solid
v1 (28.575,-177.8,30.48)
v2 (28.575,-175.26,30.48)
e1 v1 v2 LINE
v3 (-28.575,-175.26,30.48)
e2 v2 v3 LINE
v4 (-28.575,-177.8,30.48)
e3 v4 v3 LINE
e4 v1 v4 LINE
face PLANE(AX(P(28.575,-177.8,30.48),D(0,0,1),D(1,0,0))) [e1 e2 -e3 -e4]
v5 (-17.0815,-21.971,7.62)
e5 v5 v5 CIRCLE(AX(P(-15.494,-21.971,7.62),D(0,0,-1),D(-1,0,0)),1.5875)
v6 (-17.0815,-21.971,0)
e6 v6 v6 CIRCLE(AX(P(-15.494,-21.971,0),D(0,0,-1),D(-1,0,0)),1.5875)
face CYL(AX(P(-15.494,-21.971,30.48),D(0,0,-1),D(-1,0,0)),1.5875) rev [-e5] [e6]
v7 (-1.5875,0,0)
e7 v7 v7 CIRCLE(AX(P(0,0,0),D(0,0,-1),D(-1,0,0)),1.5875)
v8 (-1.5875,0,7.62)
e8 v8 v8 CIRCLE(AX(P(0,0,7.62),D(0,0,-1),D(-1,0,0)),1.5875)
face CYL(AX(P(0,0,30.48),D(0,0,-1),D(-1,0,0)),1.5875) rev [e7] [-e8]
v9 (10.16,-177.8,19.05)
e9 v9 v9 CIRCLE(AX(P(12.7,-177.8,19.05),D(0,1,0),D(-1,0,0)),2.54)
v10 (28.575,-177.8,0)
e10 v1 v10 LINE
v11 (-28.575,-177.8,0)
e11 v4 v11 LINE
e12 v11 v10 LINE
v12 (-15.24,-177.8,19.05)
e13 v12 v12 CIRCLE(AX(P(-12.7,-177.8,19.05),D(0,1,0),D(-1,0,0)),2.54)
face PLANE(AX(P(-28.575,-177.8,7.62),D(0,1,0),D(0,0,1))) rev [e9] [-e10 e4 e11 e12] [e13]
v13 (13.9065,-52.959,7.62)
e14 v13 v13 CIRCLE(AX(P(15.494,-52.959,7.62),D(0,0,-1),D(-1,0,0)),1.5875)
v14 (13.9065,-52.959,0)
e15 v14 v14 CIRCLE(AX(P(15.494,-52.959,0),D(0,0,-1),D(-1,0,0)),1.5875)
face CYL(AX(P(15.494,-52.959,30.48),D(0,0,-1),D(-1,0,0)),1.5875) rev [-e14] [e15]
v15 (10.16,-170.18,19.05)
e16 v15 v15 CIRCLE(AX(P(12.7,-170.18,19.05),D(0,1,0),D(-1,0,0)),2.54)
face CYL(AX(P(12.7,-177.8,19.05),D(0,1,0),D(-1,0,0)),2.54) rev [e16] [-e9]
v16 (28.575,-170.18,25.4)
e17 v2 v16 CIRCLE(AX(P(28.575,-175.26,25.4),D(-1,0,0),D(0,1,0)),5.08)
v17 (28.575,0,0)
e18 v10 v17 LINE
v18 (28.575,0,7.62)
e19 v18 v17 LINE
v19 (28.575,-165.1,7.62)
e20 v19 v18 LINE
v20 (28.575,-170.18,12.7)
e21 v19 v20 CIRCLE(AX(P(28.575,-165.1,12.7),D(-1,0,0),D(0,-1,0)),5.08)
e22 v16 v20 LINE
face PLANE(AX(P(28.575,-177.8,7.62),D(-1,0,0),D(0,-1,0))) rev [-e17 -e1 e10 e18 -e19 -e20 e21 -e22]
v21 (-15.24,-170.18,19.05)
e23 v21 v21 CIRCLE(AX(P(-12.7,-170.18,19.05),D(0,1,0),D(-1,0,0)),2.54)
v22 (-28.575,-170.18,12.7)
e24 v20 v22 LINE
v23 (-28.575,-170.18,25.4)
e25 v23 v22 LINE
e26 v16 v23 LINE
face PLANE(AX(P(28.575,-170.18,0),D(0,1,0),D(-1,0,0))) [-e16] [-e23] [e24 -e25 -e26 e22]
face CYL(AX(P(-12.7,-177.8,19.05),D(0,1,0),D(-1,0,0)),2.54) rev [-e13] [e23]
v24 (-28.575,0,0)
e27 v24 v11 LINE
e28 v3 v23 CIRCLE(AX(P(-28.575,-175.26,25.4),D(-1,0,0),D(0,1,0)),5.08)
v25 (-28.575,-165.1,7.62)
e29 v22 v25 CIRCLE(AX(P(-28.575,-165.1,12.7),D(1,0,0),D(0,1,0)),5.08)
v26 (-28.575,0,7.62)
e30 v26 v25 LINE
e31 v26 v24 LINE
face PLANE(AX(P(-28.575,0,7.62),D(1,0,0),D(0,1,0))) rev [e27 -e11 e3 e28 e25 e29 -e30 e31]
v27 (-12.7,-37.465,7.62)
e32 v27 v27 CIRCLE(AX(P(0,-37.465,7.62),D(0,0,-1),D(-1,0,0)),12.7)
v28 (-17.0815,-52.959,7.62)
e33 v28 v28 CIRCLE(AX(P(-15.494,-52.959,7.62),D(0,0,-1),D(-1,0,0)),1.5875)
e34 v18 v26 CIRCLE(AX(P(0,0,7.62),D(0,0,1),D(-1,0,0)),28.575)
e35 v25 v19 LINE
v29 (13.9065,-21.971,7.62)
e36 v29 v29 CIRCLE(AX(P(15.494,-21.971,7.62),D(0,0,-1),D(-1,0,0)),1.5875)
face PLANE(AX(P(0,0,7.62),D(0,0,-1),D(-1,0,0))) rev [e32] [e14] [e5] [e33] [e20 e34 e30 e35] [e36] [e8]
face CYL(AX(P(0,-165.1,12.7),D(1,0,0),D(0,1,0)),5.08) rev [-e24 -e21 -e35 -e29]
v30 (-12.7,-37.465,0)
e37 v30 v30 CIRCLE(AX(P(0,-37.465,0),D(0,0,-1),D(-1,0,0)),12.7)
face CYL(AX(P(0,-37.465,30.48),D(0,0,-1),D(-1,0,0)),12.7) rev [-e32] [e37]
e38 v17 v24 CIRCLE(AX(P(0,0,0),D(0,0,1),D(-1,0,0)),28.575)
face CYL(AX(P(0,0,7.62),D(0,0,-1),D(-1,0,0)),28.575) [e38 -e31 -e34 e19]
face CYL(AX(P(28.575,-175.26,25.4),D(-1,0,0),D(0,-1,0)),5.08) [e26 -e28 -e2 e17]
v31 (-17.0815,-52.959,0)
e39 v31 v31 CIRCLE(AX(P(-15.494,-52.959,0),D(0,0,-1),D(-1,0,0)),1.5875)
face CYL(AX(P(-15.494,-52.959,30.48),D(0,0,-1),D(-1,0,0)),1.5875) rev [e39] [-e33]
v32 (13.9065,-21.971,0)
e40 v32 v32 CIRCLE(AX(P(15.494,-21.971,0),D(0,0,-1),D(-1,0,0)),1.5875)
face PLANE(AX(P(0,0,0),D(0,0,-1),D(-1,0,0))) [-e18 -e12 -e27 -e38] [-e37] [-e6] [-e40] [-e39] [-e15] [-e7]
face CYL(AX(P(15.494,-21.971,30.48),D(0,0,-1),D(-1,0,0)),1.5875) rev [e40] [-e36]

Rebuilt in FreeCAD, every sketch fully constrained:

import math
import FreeCAD as App
import Part
import Sketcher
Q = App.Units.Quantity


def edges_at(feature, points):
    """Names of the edges that pass closest to the given points."""
    edges = feature.Shape.Edges
    near = lambda p: min(range(len(edges)), key=lambda i: edges[i].distToShape(Part.Vertex(*p))[0])
    return sorted({f"Edge{near(p) + 1}" for p in points})

doc = App.newDocument("Part")
body = doc.addObject("PartDesign::Body", "Body")

sketch1 = body.newObject("Sketcher::SketchObject", "Sketch")
sketch1.AttachmentSupport = (doc.getObject("XY_Plane"), [""])
sketch1.MapMode = "FlatFace"
sketch1.addGeometry([
    Part.LineSegment(App.Vector(-28.575, 0, 0), App.Vector(-28.575, -177.8, 0)),
    Part.LineSegment(App.Vector(-28.575, -177.8, 0), App.Vector(28.575, -177.8, 0)),
    Part.LineSegment(App.Vector(28.575, -177.8, 0), App.Vector(28.575, 0, 0)),
    Part.ArcOfCircle(Part.Circle(App.Vector(0, 0, 0), App.Vector(0, 0, 1), 28.575), math.radians(0), math.radians(180)),
], False)
sketch1.addConstraint([
    Sketcher.Constraint("Coincident", 0, 2, 1, 1),
    Sketcher.Constraint("Coincident", 1, 2, 2, 1),
    Sketcher.Constraint("Tangent", 2, 2, 3, 1),
    Sketcher.Constraint("Tangent", 3, 2, 0, 1),
    Sketcher.Constraint("Vertical", 0),
    Sketcher.Constraint("Horizontal", 1),
    Sketcher.Constraint("Vertical", 2),
    Sketcher.Constraint("Coincident", 3, 3, -1, 1),
    Sketcher.Constraint("DistanceY", 0, 2, 0, 1, Q("7 in")),
    Sketcher.Constraint("Radius", 3, Q("1.125 in")),
])
pad1 = body.newObject("PartDesign::Pad", "Pad")
pad1.Profile = sketch1
pad1.Length = Q("0.3 in")

sketch2 = body.newObject("Sketcher::SketchObject", "Sketch001")
sketch2.AttachmentSupport = (doc.getObject("YZ_Plane"), [""])
sketch2.MapMode = "FlatFace"
sketch2.AttachmentOffset = App.Placement(App.Vector(0, 0, -1.125 * 25.4), App.Rotation())
sketch2.addGeometry([
    Part.LineSegment(App.Vector(-177.8, 0, 0), App.Vector(-177.8, 30.48, 0)),
    Part.LineSegment(App.Vector(-177.8, 30.48, 0), App.Vector(-175.26, 30.48, 0)),
    Part.ArcOfCircle(Part.Circle(App.Vector(-175.26, 25.4, 0), App.Vector(0, 0, 1), 5.08), math.radians(0), math.radians(90)),
    Part.LineSegment(App.Vector(-170.18, 25.4, 0), App.Vector(-170.18, 0, 0)),
    Part.LineSegment(App.Vector(-170.18, 0, 0), App.Vector(-177.8, 0, 0)),
], False)
sketch2.addConstraint([
    Sketcher.Constraint("Coincident", 0, 2, 1, 1),
    Sketcher.Constraint("Tangent", 1, 2, 2, 2),
    Sketcher.Constraint("Tangent", 2, 1, 3, 1),
    Sketcher.Constraint("Coincident", 3, 2, 4, 1),
    Sketcher.Constraint("Coincident", 4, 2, 0, 1),
    Sketcher.Constraint("Vertical", 0),
    Sketcher.Constraint("Horizontal", 1),
    Sketcher.Constraint("Vertical", 3),
    Sketcher.Constraint("Horizontal", 4),
    Sketcher.Constraint("PointOnObject", 3, 2, -1),
    Sketcher.Constraint("Radius", 2, Q("0.2 in")),
    Sketcher.Constraint("DistanceY", 3, 2, 3, 1, Q("1 in")),
    Sketcher.Constraint("DistanceX", 1, 1, 1, 2, Q("0.1 in")),
    Sketcher.Constraint("DistanceX", 0, 2, -1, 1, Q("7 in")),
])
pad2 = body.newObject("PartDesign::Pad", "Pad001")
pad2.Profile = sketch2
pad2.Length = Q("2.25 in")
doc.recompute()

fillet = body.newObject("PartDesign::Fillet", "Fillet")
fillet.Base = (pad2, edges_at(pad2, [(0, -170.18, 7.62)]))
fillet.Radius = Q("0.2 in")

sketch3 = body.newObject("Sketcher::SketchObject", "Sketch002")
sketch3.AttachmentSupport = (doc.getObject("XZ_Plane"), [""])
sketch3.MapMode = "FlatFace"
sketch3.AttachmentOffset = App.Placement(App.Vector(0, 0, 6.7 * 25.4), App.Rotation())
sketch3.addGeometry([
    Part.Circle(App.Vector(12.7, 19.05, 0), App.Vector(0, 0, 1), 2.54),
    Part.Circle(App.Vector(-12.7, 19.05, 0), App.Vector(0, 0, 1), 2.54),
], False)
sketch3.addConstraint([
    Sketcher.Constraint("Equal", 0, 1),
    Sketcher.Constraint("Symmetric", 0, 3, 1, 3, -2),
    Sketcher.Constraint("Diameter", 0, Q("0.2 in")),
    Sketcher.Constraint("DistanceX", 1, 3, 0, 3, Q("1 in")),
    Sketcher.Constraint("DistanceY", -1, 1, 0, 3, Q("0.75 in")),
])
pocket1 = body.newObject("PartDesign::Pocket", "Pocket")
pocket1.Profile = sketch3
pocket1.Type = "ThroughAll"
pocket1.Reversed = True

sketch4 = body.newObject("Sketcher::SketchObject", "Sketch003")
sketch4.AttachmentSupport = (doc.getObject("XY_Plane"), [""])
sketch4.MapMode = "FlatFace"
sketch4.addGeometry(Part.Circle(App.Vector(0, 0, 0), App.Vector(0, 0, 1), 1.5875), False)
sketch4.addConstraint([
    Sketcher.Constraint("Coincident", 0, 3, -1, 1),
    Sketcher.Constraint("Diameter", 0, Q("0.125 in")),
])
pocket2 = body.newObject("PartDesign::Pocket", "Pocket001")
pocket2.Profile = sketch4
pocket2.Type = "ThroughAll"
pocket2.Reversed = True

sketch5 = body.newObject("Sketcher::SketchObject", "Sketch004")
sketch5.AttachmentSupport = (doc.getObject("XY_Plane"), [""])
sketch5.MapMode = "FlatFace"
sketch5.addGeometry(Part.Circle(App.Vector(0, -37.465, 0), App.Vector(0, 0, 1), 12.7), False)
sketch5.addConstraint([
    Sketcher.Constraint("PointOnObject", 0, 3, -2),
    Sketcher.Constraint("Diameter", 0, Q("1 in")),
    Sketcher.Constraint("DistanceY", 0, 3, -1, 1, Q("1.475 in")),
])
pocket3 = body.newObject("PartDesign::Pocket", "Pocket002")
pocket3.Profile = sketch5
pocket3.Type = "ThroughAll"
pocket3.Reversed = True

sketch6 = body.newObject("Sketcher::SketchObject", "Sketch005")
sketch6.AttachmentSupport = (doc.getObject("XY_Plane"), [""])
sketch6.MapMode = "FlatFace"
sketch6.addGeometry([
    Part.Circle(App.Vector(15.494, -21.971, 0), App.Vector(0, 0, 1), 1.5875),
    Part.Circle(App.Vector(-15.494, -21.971, 0), App.Vector(0, 0, 1), 1.5875),
    Part.Circle(App.Vector(-15.494, -52.959, 0), App.Vector(0, 0, 1), 1.5875),
    Part.Circle(App.Vector(15.494, -52.959, 0), App.Vector(0, 0, 1), 1.5875),
], False)
sketch6.addConstraint([
    Sketcher.Constraint("Equal", 0, 1),
    Sketcher.Constraint("Equal", 1, 2),
    Sketcher.Constraint("Equal", 2, 3),
    Sketcher.Constraint("Symmetric", 0, 3, 1, 3, -2),
    Sketcher.Constraint("Symmetric", 2, 3, 3, 3, -2),
    Sketcher.Constraint("Vertical", 1, 3, 2, 3),
    Sketcher.Constraint("Diameter", 0, Q("0.125 in")),
    Sketcher.Constraint("DistanceX", -1, 1, 0, 3, Q("0.61 in")),
    Sketcher.Constraint("DistanceY", 2, 3, 1, 3, Q("1.22 in")),
    Sketcher.Constraint("DistanceY", 0, 3, -1, 1, Q("0.865 in")),
])
pocket4 = body.newObject("PartDesign::Pocket", "Pocket003")
pocket4.Profile = sketch6
pocket4.Type = "ThroughAll"
pocket4.Reversed = True

doc.recompute()
